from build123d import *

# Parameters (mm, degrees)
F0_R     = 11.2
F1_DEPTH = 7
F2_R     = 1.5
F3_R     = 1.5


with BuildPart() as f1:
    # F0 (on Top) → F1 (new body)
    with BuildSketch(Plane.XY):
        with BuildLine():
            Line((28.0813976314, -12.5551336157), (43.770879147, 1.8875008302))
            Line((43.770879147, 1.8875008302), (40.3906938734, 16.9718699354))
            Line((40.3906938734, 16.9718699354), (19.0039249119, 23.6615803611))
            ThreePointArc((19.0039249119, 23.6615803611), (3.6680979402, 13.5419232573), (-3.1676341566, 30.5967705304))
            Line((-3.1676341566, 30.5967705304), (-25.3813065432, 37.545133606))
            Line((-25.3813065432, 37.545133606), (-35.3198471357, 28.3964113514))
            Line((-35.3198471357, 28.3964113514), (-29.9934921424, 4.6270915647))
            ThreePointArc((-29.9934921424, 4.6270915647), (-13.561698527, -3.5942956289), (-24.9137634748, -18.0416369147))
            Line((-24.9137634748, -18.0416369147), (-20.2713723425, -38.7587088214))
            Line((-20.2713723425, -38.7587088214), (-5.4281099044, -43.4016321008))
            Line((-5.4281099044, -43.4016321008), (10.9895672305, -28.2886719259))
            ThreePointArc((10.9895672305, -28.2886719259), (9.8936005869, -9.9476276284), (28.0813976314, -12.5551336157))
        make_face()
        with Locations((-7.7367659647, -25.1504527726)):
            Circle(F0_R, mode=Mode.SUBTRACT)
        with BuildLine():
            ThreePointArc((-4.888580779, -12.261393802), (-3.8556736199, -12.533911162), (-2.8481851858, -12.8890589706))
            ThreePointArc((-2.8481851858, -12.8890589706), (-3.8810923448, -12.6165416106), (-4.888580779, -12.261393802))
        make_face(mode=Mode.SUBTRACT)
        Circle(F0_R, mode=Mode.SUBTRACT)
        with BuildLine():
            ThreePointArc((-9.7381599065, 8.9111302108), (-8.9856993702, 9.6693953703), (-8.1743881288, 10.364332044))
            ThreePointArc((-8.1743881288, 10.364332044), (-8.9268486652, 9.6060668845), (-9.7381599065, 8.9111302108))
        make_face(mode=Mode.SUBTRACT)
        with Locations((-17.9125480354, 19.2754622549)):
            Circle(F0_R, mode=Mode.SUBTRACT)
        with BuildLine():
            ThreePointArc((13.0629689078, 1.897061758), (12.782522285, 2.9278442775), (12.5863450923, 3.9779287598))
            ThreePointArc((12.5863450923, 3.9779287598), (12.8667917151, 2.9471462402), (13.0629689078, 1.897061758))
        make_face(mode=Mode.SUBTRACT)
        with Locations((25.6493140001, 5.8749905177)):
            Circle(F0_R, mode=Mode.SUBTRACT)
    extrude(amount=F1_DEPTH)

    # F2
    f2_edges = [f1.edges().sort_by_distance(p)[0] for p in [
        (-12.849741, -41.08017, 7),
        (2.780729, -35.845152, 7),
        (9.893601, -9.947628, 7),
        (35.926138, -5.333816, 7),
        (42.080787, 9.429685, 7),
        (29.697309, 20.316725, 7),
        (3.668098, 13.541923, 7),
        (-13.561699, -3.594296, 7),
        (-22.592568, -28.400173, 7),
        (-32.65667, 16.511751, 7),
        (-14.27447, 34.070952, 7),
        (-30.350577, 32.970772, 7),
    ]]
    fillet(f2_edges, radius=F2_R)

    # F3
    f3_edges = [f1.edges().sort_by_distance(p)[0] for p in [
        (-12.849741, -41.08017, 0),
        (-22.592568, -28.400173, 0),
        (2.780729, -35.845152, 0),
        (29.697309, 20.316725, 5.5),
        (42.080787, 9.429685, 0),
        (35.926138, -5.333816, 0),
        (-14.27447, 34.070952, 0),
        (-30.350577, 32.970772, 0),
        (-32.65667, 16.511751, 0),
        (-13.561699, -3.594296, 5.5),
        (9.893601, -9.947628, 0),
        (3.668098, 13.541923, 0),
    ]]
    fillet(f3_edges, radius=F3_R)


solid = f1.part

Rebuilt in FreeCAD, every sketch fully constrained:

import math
import FreeCAD as App
import Part
import Sketcher
Q = App.Units.Quantity


def edges_at(feature, points):
    """Names of the edges that pass closest to the given points."""
    edges = feature.Shape.Edges
    near = lambda p: min(range(len(edges)), key=lambda i: edges[i].distToShape(Part.Vertex(*p))[0])
    return sorted({f"Edge{near(p) + 1}" for p in points})

doc = App.newDocument("Part")
body = doc.addObject("PartDesign::Body", "Body")

# Sketch on XY plane
sketch1 = doc.addObject("Sketcher::SketchObject", "Sketch")
body.addObject(sketch1)
sketch1.AttachmentSupport = (doc.XY_Plane, [""])
sketch1.MapMode = "FlatFace"
sketch1.addGeometry([
    Part.LineSegment(App.Vector(28.1, -12.6, 0), App.Vector(43.8, 1.9, 0)),  # 0
    Part.LineSegment(App.Vector(43.8, 1.9, 0), App.Vector(40.4, 17, 0)),  # 1
    Part.LineSegment(App.Vector(40.4, 17, 0), App.Vector(19, 23.7, 0)),  # 2
    Part.ArcOfCircle(Part.Circle(App.Vector(7.2, 24.9, 0), App.Vector(0, 0, 1), 11.9), math.radians(151), math.radians(354)),  # 3
    Part.LineSegment(App.Vector(-3.2, 30.6, 0), App.Vector(-25.4, 37.5, 0)),  # 4
    Part.LineSegment(App.Vector(-25.4, 37.5, 0), App.Vector(-35.3, 28.4, 0)),  # 5
    Part.LineSegment(App.Vector(-35.3, 28.4, 0), App.Vector(-30, 4.6, 0)),  # 6
    Part.ArcOfCircle(Part.Circle(App.Vector(-25.1, -6.2, 0), App.Vector(0, 0, 1), 11.9), math.radians(-89), math.radians(114)),  # 7
    Part.LineSegment(App.Vector(-24.9, -18, 0), App.Vector(-20.3, -38.8, 0)),  # 8
    Part.LineSegment(App.Vector(-20.3, -38.8, 0), App.Vector(-5.4, -43.4, 0)),  # 9
    Part.LineSegment(App.Vector(-5.4, -43.4, 0), App.Vector(11, -28.3, 0)),  # 10
    Part.ArcOfCircle(Part.Circle(App.Vector(17.9, -18.7, 0), App.Vector(0, 0, 1), 11.9), math.radians(31), math.radians(234)),  # 11
    Part.Circle(App.Vector(-7.7, -25.2, 0), App.Vector(0, 0, 1), 11.2),  # 12
    Part.ArcOfCircle(Part.Circle(App.Vector(0, 0, 0), App.Vector(0, 0, 1), 13.2), math.radians(-111.74), math.radians(-102.46)),  # 13
    Part.ArcOfCircle(Part.Circle(App.Vector(-7.7, -25.2, 0), App.Vector(0, 0, 1), 13.2), math.radians(68.26), math.radians(77.54)),  # 14
    Part.Circle(App.Vector(0, 0, 0), App.Vector(0, 0, 1), 11.2),  # 15
    Part.ArcOfCircle(Part.Circle(App.Vector(-17.9, 19.3, 0), App.Vector(0, 0, 1), 13.2), math.radians(-51.74), math.radians(-42.46)),  # 16
    Part.ArcOfCircle(Part.Circle(App.Vector(0, 0, 0), App.Vector(0, 0, 1), 13.2), math.radians(128.26), math.radians(137.54)),  # 17
    Part.Circle(App.Vector(-17.9, 19.3, 0), App.Vector(0, 0, 1), 11.2),  # 18
    Part.ArcOfCircle(Part.Circle(App.Vector(0, 0, 0), App.Vector(0, 0, 1), 13.2), math.radians(8.26), math.radians(17.54)),  # 19
    Part.ArcOfCircle(Part.Circle(App.Vector(25.6, 5.9, 0), App.Vector(0, 0, 1), 13.2), math.radians(-171.74), math.radians(-162.46)),  # 20
    Part.Circle(App.Vector(25.6, 5.9, 0), App.Vector(0, 0, 1), 11.2),  # 21
], False)
sketch1.addConstraint([
    Sketcher.Constraint("Coincident", 0, 2, 1, 1),
    Sketcher.Constraint("Coincident", 1, 2, 2, 1),
    Sketcher.Constraint("Coincident", 2, 2, 3, 2),
    Sketcher.Constraint("Coincident", 3, 1, 4, 1),
    Sketcher.Constraint("Coincident", 4, 2, 5, 1),
    Sketcher.Constraint("Coincident", 5, 2, 6, 1),
    Sketcher.Constraint("Coincident", 6, 2, 7, 2),
    Sketcher.Constraint("Coincident", 7, 1, 8, 1),
    Sketcher.Constraint("Coincident", 8, 2, 9, 1),
    Sketcher.Constraint("Coincident", 9, 2, 10, 1),
    Sketcher.Constraint("Coincident", 10, 2, 11, 2),
    Sketcher.Constraint("Coincident", 11, 1, 0, 1),
    Sketcher.Constraint("Coincident", 13, 1, 14, 2),
    Sketcher.Constraint("Coincident", 14, 1, 13, 2),
    Sketcher.Constraint("Coincident", 16, 1, 17, 2),
    Sketcher.Constraint("Coincident", 17, 1, 16, 2),
    Sketcher.Constraint("Coincident", 19, 1, 20, 2),
    Sketcher.Constraint("Coincident", 20, 1, 19, 2),
    Sketcher.Constraint("Coincident", 13, 3, -1, 1),
    Sketcher.Constraint("Coincident", 15, 3, -1, 1),
    Sketcher.Constraint("Coincident", 17, 3, -1, 1),
    Sketcher.Constraint("Coincident", 19, 3, -1, 1),
    Sketcher.Constraint("Coincident", 14, 3, 12, 3),
    Sketcher.Constraint("Coincident", 18, 3, 16, 3),
    Sketcher.Constraint("Coincident", 21, 3, 20, 3),
    Sketcher.Constraint("Equal", 3, 7),
    Sketcher.Constraint("Equal", 7, 11),
    Sketcher.Constraint("Equal", 13, 14),
    Sketcher.Constraint("Equal", 12, 15),
    Sketcher.Constraint("Equal", 14, 16),
    Sketcher.Constraint("Equal", 16, 17),
    Sketcher.Constraint("Equal", 15, 18),
    Sketcher.Constraint("Equal", 17, 19),
    Sketcher.Constraint("Equal", 19, 20),
    Sketcher.Constraint("Equal", 18, 21),
    Sketcher.Constraint("Parallel", 2, 4),
    Sketcher.Constraint("Parallel", 0, 5),
    Sketcher.Constraint("Parallel", 1, 6),
    Sketcher.Constraint("Parallel", 6, 8),
    Sketcher.Constraint("Parallel", 4, 9),
    Sketcher.Constraint("Parallel", 5, 10),
    Sketcher.Constraint("Diameter", 12, Q("22.4 mm")),
    Sketcher.Constraint("Radius", 13, Q("13.2 mm")),
    Sketcher.Constraint("Radius", 3, Q("11.85672 mm")),
    Sketcher.Constraint("DistanceX", 6, 2, 7, 3, Q("4.862 mm")),
    Sketcher.Constraint("DistanceY", -1, 1, 0, 2, Q("1.887501 mm")),
    Sketcher.Constraint("DistanceY", 12, 3, 11, 3, Q("6.4794 mm")),
    Sketcher.Constraint("DistanceY", 1, 2, 3, 3, Q("7.886099 mm")),
    Sketcher.Constraint("DistanceY", 3, 3, 3, 1, Q("5.738802 mm")),
    Sketcher.Constraint("DistanceX", 5, 2, 16, 3, Q("17.407299 mm")),
    Sketcher.Constraint("DistanceY", 16, 1, 17, 1, Q("1.453202 mm")),
    Sketcher.Constraint("Distance", 4, Q("23.275029 mm")),
    Sketcher.Constraint("Distance", 6, Q("24.358789 mm")),
    Sketcher.Constraint("DistanceX", -1, 1, 3, 3, Q("7.207719 mm")),
    Sketcher.Constraint("DistanceY", -1, 1, 3, 3, Q("24.857969 mm")),
    Sketcher.Constraint("DistanceX", 16, 3, -1, 1, Q("17.912548 mm")),
    Sketcher.Constraint("DistanceY", -1, 1, 20, 3, Q("5.874991 mm")),
    Sketcher.Constraint("DistanceX", -1, 1, 0, 2, Q("43.770879 mm")),
    Sketcher.Constraint("DistanceY", -1, 1, 2, 2, Q("23.66158 mm")),
    Sketcher.Constraint("DistanceY", -1, 1, 5, 2, Q("28.396411 mm")),
    Sketcher.Constraint("DistanceY", -1, 1, 6, 2, Q("4.627092 mm")),
    Sketcher.Constraint("DistanceY", 8, 2, -1, 1, Q("38.758709 mm")),
    Sketcher.Constraint("DistanceX", 9, 2, -1, 1, Q("5.42811 mm")),
    Sketcher.Constraint("DistanceY", 10, 2, -1, 1, Q("28.288672 mm")),
    Sketcher.Constraint("DistanceX", 13, 1, -1, 1, Q("4.888581 mm")),
    Sketcher.Constraint("DistanceY", 14, 1, -1, 1, Q("12.889059 mm")),
    Sketcher.Constraint("DistanceX", -1, 1, 19, 1, Q("13.062969 mm")),
    Sketcher.Constraint("DistanceX", 12, 3, 11, 3, Q("25.660539 mm")),
])
pad1 = doc.addObject("PartDesign::Pad", "Pad")
body.addObject(pad1)
pad1.Profile = sketch1
pad1.Length = 7
doc.recompute()

fillet = doc.addObject("PartDesign::Fillet", "Fillet")
body.addObject(fillet)
fillet.Base = (pad1, edges_at(pad1, [
    (-12.85, -41.08, 7),
    (2.781, -35.845, 7),
    (9.894, -9.948, 7),
    (35.926, -5.334, 7),
    (42.081, 9.43, 7),
    (29.697, 20.317, 7),
    (3.668, 13.542, 7),
    (-13.562, -3.594, 7),
    (-22.593, -28.4, 7),
    (-32.657, 16.512, 7),
    (-14.274, 34.071, 7),
    (-30.351, 32.971, 7),
]))
fillet.Radius = 1.5
doc.recompute()

fillet2 = doc.addObject("PartDesign::Fillet", "Fillet001")
body.addObject(fillet2)
fillet2.Base = (fillet, edges_at(fillet, [
    (-12.85, -41.08, 0),
    (-22.593, -28.4, 0),
    (2.781, -35.845, 0),
    (29.697, 20.317, 5.5),
    (42.081, 9.43, 0),
    (35.926, -5.334, 0),
    (-14.274, 34.071, 0),
    (-30.351, 32.971, 0),
    (-32.657, 16.512, 0),
    (-13.562, -3.594, 5.5),
    (9.894, -9.948, 0),
    (3.668, 13.542, 0),
]))
fillet2.Radius = 1.5

doc.recompute()
